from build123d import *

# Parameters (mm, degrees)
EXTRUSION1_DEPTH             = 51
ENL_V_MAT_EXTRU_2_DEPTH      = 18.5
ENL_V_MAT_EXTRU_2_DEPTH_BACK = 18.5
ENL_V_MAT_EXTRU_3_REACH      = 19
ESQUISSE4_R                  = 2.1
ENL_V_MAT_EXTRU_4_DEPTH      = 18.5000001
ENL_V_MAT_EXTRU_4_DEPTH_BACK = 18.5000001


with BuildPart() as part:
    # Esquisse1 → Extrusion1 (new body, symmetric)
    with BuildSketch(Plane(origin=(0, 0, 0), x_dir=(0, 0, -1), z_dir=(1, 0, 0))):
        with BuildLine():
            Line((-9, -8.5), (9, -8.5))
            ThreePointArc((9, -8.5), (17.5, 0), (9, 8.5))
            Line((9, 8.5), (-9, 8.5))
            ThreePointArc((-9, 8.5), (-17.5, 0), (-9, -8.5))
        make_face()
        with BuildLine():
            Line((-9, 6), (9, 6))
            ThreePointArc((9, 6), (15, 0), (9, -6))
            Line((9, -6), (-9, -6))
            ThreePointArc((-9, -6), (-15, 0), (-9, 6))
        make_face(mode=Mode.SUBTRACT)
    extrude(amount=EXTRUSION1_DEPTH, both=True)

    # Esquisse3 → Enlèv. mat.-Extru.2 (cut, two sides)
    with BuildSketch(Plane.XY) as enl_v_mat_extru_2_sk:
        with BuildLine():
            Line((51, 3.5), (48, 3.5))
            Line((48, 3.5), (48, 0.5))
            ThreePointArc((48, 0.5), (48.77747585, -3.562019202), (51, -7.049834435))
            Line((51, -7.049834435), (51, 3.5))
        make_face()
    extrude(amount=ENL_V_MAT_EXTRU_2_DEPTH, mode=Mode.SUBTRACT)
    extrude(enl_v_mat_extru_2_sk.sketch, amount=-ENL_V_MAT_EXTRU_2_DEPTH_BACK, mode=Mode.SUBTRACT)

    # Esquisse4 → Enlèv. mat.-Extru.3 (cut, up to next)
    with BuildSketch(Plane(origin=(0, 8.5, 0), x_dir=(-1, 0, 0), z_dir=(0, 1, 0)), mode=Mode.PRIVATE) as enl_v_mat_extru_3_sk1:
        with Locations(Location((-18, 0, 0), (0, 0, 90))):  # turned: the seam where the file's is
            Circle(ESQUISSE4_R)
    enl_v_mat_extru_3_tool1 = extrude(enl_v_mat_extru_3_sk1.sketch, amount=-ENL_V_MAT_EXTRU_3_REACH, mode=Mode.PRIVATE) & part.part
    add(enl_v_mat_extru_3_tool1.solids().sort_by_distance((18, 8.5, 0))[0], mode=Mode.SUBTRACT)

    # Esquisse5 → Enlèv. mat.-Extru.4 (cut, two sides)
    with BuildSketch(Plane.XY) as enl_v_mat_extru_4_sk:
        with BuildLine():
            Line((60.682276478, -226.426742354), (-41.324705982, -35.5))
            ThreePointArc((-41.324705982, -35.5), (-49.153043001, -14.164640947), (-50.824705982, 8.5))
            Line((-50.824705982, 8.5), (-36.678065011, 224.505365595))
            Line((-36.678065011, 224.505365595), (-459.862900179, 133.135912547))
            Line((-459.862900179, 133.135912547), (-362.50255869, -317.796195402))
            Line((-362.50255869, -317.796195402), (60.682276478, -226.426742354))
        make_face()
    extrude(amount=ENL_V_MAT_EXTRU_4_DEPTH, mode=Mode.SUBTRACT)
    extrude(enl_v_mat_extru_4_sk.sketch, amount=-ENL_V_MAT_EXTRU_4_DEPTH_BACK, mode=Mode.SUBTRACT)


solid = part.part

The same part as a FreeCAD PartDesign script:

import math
import FreeCAD as App
import Part
import Sketcher
from FreeCAD import Vector
Q = App.Units.Quantity

doc = App.newDocument("Part")
body = doc.addObject("PartDesign::Body", "Body")

sketch1 = body.newObject("Sketcher::SketchObject", "Sketch")
sketch1.AttachmentSupport = (doc.getObject("YZ_Plane"), [""])
sketch1.MapMode = "FlatFace"
sketch1.addGeometry(Part.LineSegment(Vector(-8, 9, 0), Vector(-8, -9, 0)), False)
sketch1.addGeometry(Part.ArcOfCircle(Part.Circle(Vector(0, -9, 0), Vector(0, 0, 1), 8), math.radians(180), math.radians(360)), False)
sketch1.addGeometry(Part.LineSegment(Vector(8, -9, 0), Vector(8, 9, 0)), False)
sketch1.addGeometry(Part.ArcOfCircle(Part.Circle(Vector(0, 9, 0), Vector(0, 0, 1), 8), math.radians(0), math.radians(180)), False)
sketch1.addGeometry(Part.ArcOfCircle(Part.Circle(Vector(0, 9, 0), Vector(0, 0, 1), 6), math.radians(0), math.radians(180)), False)
sketch1.addGeometry(Part.LineSegment(Vector(6, 9, 0), Vector(6, -9, 0)), False)
sketch1.addGeometry(Part.ArcOfCircle(Part.Circle(Vector(0, -9, 0), Vector(0, 0, 1), 6), math.radians(180), math.radians(360)), False)
sketch1.addGeometry(Part.LineSegment(Vector(-6, -9, 0), Vector(-6, 9, 0)), False)
sketch1.addConstraint(Sketcher.Constraint("Tangent", 0, 2, 1, 1))
sketch1.addConstraint(Sketcher.Constraint("Tangent", 1, 2, 2, 1))
sketch1.addConstraint(Sketcher.Constraint("Tangent", 2, 2, 3, 1))
sketch1.addConstraint(Sketcher.Constraint("Tangent", 3, 2, 0, 1))
sketch1.addConstraint(Sketcher.Constraint("Tangent", 4, 1, 5, 1))
sketch1.addConstraint(Sketcher.Constraint("Tangent", 5, 2, 6, 2))
sketch1.addConstraint(Sketcher.Constraint("Tangent", 6, 1, 7, 1))
sketch1.addConstraint(Sketcher.Constraint("Tangent", 7, 2, 4, 2))
sketch1.addConstraint(Sketcher.Constraint("Vertical", 0))
sketch1.addConstraint(Sketcher.Constraint("Vertical", 2))
sketch1.addConstraint(Sketcher.Constraint("Vertical", 5))
sketch1.addConstraint(Sketcher.Constraint("Vertical", 7))
sketch1.addConstraint(Sketcher.Constraint("Coincident", 4, 3, 3, 3))
sketch1.addConstraint(Sketcher.Constraint("Symmetric", 1, 3, 3, 3, -1, 1))
sketch1.addConstraint(Sketcher.Constraint("Horizontal", 6, 3, 0, 2))
sketch1.addConstraint(Sketcher.Constraint("Radius", 4, Q("6 mm")))
sketch1.addConstraint(Sketcher.Constraint("Radius", 1, Q("8.5 mm")))
sketch1.addConstraint(Sketcher.Constraint("DistanceY", 0, 2, 0, 1, Q("18 mm")))
pad1 = body.newObject("PartDesign::Pad", "Pad")
pad1.Profile = sketch1
pad1.Length = 102
pad1.Midplane = True

sketch2 = body.newObject("Sketcher::SketchObject", "Sketch001")
sketch2.AttachmentSupport = (doc.getObject("XY_Plane"), [""])
sketch2.MapMode = "FlatFace"
sketch2.addGeometry(Part.LineSegment(Vector(51, 3.5, 0), Vector(48, 3.5, 0)), False)
sketch2.addGeometry(Part.LineSegment(Vector(48, 3.5, 0), Vector(48, 0.5, 0)), False)
sketch2.addGeometry(Part.ArcOfCircle(Part.Circle(Vector(59, 0.5, 0), Vector(0, 0, 1), 11), math.radians(-180), math.radians(-137)), False)
sketch2.addGeometry(Part.LineSegment(Vector(51, -7, 0), Vector(51, 3.5, 0)), False)
sketch2.addConstraint(Sketcher.Constraint("Coincident", 0, 2, 1, 1))
sketch2.addConstraint(Sketcher.Constraint("Tangent", 1, 2, 2, 1))
sketch2.addConstraint(Sketcher.Constraint("Coincident", 2, 2, 3, 1))
sketch2.addConstraint(Sketcher.Constraint("Coincident", 3, 2, 0, 1))
sketch2.addConstraint(Sketcher.Constraint("Horizontal", 0))
sketch2.addConstraint(Sketcher.Constraint("Vertical", 1))
sketch2.addConstraint(Sketcher.Constraint("Vertical", 3))
sketch2.addConstraint(Sketcher.Constraint("Equal", 0, 1))
sketch2.addConstraint(Sketcher.Constraint("Radius", 2, Q("11 mm")))
sketch2.addConstraint(Sketcher.Constraint("DistanceX", 0, 2, 0, 1, Q("3 mm")))
sketch2.addConstraint(Sketcher.Constraint("DistanceX", -1, 1, 2, 3, Q("59 mm")))
sketch2.addConstraint(Sketcher.Constraint("DistanceY", -1, 1, 2, 3, Q("0.5 mm")))
pocket1 = body.newObject("PartDesign::Pocket", "Pocket")
pocket1.Profile = sketch2
pocket1.Type = "ThroughAll"
pocket1.Midplane = True

sketch3 = body.newObject("Sketcher::SketchObject", "Sketch002")
sketch3.AttachmentSupport = (doc.getObject("XZ_Plane"), [""])
sketch3.MapMode = "FlatFace"
sketch3.AttachmentOffset = App.Placement(Vector(0, 0, -8.5), App.Rotation())
sketch3.addGeometry(Part.Circle(Vector(18, 0, 0), Vector(0, 0, 1), 2.1), False)
sketch3.addConstraint(Sketcher.Constraint("PointOnObject", 0, 3, -1))
sketch3.addConstraint(Sketcher.Constraint("Diameter", 0, Q("4.2 mm")))
sketch3.addConstraint(Sketcher.Constraint("DistanceX", -1, 1, 0, 3, Q("18 mm")))
pocket2 = body.newObject("PartDesign::Pocket", "Pocket001")
pocket2.Profile = sketch3
pocket2.Type = "UpToFirst"
pocket2.Reversed = True

sketch4 = body.newObject("Sketcher::SketchObject", "Sketch003")
sketch4.AttachmentSupport = (doc.getObject("XY_Plane"), [""])
sketch4.MapMode = "FlatFace"
sketch4.addGeometry(Part.LineSegment(Vector(61, -226, 0), Vector(-41, -36, 0)), False)
sketch4.addGeometry(Part.ArcOfCircle(Part.Circle(Vector(31, 3, 0), Vector(0, 0, 1), 82), math.radians(176), math.radians(208)), False)
sketch4.addGeometry(Part.LineSegment(Vector(-51, 8, 0), Vector(-37, 225, 0)), False)
sketch4.addGeometry(Part.LineSegment(Vector(-37, 225, 0), Vector(-460, 133, 0)), False)
sketch4.addGeometry(Part.LineSegment(Vector(-460, 133, 0), Vector(-363, -318, 0)), False)
sketch4.addGeometry(Part.LineSegment(Vector(-363, -318, 0), Vector(61, -226, 0)), False)
sketch4.addConstraint(Sketcher.Constraint("Tangent", 0, 2, 1, 2))
sketch4.addConstraint(Sketcher.Constraint("Tangent", 1, 1, 2, 1))
sketch4.addConstraint(Sketcher.Constraint("Coincident", 2, 2, 3, 1))
sketch4.addConstraint(Sketcher.Constraint("Coincident", 3, 2, 4, 1))
sketch4.addConstraint(Sketcher.Constraint("Coincident", 4, 2, 5, 1))
sketch4.addConstraint(Sketcher.Constraint("Coincident", 5, 2, 0, 1))
sketch4.addConstraint(Sketcher.Constraint("Perpendicular", 3, 4))
sketch4.addConstraint(Sketcher.Constraint("Perpendicular", 4, 5))
sketch4.addConstraint(Sketcher.Constraint("Equal", 0, 2))
sketch4.addConstraint(Sketcher.Constraint("Equal", 3, 5))
sketch4.addConstraint(Sketcher.Constraint("Radius", 1, Q("82 mm")))
sketch4.addConstraint(Sketcher.Constraint("DistanceX", -1, 1, 1, 3, Q("31 mm")))
sketch4.addConstraint(Sketcher.Constraint("DistanceY", 0, 2, 1, 1, Q("44 mm")))
sketch4.addConstraint(Sketcher.Constraint("DistanceY", 0, 2, -1, 1, Q("35.5 mm")))
sketch4.addConstraint(Sketcher.Constraint("DistanceX", 1, 1, 0, 2, Q("9.5 mm")))
sketch4.addConstraint(Sketcher.Constraint("DistanceX", 3, 2, -1, 1, Q("459.8629 mm")))
sketch4.addConstraint(Sketcher.Constraint("DistanceX", 4, 2, -1, 1, Q("362.502559 mm")))
pocket3 = body.newObject("PartDesign::Pocket", "Pocket002")
pocket3.Profile = sketch4
pocket3.Type = "ThroughAll"
pocket3.Midplane = True

doc.recompute()
